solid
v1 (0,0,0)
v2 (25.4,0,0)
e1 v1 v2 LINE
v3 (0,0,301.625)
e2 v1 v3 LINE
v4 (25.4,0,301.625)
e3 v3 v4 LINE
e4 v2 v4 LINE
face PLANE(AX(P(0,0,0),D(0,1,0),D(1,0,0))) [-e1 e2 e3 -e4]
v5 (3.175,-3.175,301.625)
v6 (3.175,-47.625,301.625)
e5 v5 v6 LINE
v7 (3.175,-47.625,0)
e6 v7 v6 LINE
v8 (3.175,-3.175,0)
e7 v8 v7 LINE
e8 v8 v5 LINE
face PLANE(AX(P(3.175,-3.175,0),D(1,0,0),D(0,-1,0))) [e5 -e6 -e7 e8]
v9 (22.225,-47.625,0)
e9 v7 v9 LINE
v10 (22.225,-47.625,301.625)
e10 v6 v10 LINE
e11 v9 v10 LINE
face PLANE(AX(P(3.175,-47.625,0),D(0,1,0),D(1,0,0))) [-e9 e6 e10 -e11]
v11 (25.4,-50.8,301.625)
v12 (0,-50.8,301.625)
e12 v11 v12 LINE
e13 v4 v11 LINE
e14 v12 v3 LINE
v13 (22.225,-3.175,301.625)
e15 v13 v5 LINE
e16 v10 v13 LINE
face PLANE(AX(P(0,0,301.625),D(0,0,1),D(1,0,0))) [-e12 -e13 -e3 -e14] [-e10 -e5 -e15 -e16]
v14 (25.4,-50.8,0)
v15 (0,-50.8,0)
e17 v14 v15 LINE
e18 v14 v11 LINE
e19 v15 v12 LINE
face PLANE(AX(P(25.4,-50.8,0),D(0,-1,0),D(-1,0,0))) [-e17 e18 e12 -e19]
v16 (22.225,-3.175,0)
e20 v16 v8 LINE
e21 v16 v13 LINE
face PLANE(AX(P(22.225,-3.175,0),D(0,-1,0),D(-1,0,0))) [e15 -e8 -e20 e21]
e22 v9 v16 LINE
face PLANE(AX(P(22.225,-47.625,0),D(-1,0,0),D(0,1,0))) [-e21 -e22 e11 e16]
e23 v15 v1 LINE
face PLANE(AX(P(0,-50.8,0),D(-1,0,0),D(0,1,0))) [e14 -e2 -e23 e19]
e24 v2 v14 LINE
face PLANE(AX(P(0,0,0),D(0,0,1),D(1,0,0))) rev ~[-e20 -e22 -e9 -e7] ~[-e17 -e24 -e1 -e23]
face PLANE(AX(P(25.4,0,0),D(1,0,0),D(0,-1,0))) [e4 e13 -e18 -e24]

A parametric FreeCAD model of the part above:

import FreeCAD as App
import Part
import Sketcher
from FreeCAD import Vector
Q = App.Units.Quantity

doc = App.newDocument("Part")
body = doc.addObject("PartDesign::Body", "Body")

sketch1 = body.newObject("Sketcher::SketchObject", "Sketch")
sketch1.AttachmentSupport = (doc.getObject("XY_Plane"), [""])
sketch1.MapMode = "FlatFace"
sketch1.addGeometry([
    Part.LineSegment(Vector(25, 0, 0), Vector(0, 0, 0)),
    Part.LineSegment(Vector(0, 0, 0), Vector(0, -51, 0)),
    Part.LineSegment(Vector(0, -51, 0), Vector(25, -51, 0)),
    Part.LineSegment(Vector(25, -51, 0), Vector(25, 0, 0)),
    Part.LineSegment(Vector(3, -3, 0), Vector(22, -3, 0)),
    Part.LineSegment(Vector(22, -3, 0), Vector(22, -48, 0)),
    Part.LineSegment(Vector(22, -48, 0), Vector(3, -48, 0)),
    Part.LineSegment(Vector(3, -48, 0), Vector(3, -3, 0)),
], False)
sketch1.addConstraint([
    Sketcher.Constraint("Coincident", 0, 2, 1, 1),
    Sketcher.Constraint("Coincident", 1, 2, 2, 1),
    Sketcher.Constraint("Coincident", 2, 2, 3, 1),
    Sketcher.Constraint("Coincident", 3, 2, 0, 1),
    Sketcher.Constraint("Coincident", 4, 2, 5, 1),
    Sketcher.Constraint("Coincident", 5, 2, 6, 1),
    Sketcher.Constraint("Coincident", 6, 2, 7, 1),
    Sketcher.Constraint("Coincident", 7, 2, 4, 1),
    Sketcher.Constraint("Horizontal", 0),
    Sketcher.Constraint("Vertical", 1),
    Sketcher.Constraint("Horizontal", 2),
    Sketcher.Constraint("Vertical", 3),
    Sketcher.Constraint("Horizontal", 4),
    Sketcher.Constraint("Vertical", 5),
    Sketcher.Constraint("Horizontal", 6),
    Sketcher.Constraint("Vertical", 7),
    Sketcher.Constraint("Coincident", 0, 2, -1, 1),
    Sketcher.Constraint("DistanceX", 0, 2, 0, 1, Q("1 in")),
    Sketcher.Constraint("DistanceY", 1, 2, 1, 1, Q("2 in")),
    Sketcher.Constraint("DistanceY", 4, 2, -1, 1, Q("0.125 in")),
    Sketcher.Constraint("DistanceX", -1, 1, 6, 2, Q("0.125 in")),
    Sketcher.Constraint("DistanceX", 4, 2, 3, 2, Q("0.125 in")),
    Sketcher.Constraint("DistanceY", 2, 2, 5, 2, Q("0.125 in")),
])
pad1 = body.newObject("PartDesign::Pad", "Pad")
pad1.Profile = sketch1
pad1.Length = Q("11.875 in")

doc.recompute()
